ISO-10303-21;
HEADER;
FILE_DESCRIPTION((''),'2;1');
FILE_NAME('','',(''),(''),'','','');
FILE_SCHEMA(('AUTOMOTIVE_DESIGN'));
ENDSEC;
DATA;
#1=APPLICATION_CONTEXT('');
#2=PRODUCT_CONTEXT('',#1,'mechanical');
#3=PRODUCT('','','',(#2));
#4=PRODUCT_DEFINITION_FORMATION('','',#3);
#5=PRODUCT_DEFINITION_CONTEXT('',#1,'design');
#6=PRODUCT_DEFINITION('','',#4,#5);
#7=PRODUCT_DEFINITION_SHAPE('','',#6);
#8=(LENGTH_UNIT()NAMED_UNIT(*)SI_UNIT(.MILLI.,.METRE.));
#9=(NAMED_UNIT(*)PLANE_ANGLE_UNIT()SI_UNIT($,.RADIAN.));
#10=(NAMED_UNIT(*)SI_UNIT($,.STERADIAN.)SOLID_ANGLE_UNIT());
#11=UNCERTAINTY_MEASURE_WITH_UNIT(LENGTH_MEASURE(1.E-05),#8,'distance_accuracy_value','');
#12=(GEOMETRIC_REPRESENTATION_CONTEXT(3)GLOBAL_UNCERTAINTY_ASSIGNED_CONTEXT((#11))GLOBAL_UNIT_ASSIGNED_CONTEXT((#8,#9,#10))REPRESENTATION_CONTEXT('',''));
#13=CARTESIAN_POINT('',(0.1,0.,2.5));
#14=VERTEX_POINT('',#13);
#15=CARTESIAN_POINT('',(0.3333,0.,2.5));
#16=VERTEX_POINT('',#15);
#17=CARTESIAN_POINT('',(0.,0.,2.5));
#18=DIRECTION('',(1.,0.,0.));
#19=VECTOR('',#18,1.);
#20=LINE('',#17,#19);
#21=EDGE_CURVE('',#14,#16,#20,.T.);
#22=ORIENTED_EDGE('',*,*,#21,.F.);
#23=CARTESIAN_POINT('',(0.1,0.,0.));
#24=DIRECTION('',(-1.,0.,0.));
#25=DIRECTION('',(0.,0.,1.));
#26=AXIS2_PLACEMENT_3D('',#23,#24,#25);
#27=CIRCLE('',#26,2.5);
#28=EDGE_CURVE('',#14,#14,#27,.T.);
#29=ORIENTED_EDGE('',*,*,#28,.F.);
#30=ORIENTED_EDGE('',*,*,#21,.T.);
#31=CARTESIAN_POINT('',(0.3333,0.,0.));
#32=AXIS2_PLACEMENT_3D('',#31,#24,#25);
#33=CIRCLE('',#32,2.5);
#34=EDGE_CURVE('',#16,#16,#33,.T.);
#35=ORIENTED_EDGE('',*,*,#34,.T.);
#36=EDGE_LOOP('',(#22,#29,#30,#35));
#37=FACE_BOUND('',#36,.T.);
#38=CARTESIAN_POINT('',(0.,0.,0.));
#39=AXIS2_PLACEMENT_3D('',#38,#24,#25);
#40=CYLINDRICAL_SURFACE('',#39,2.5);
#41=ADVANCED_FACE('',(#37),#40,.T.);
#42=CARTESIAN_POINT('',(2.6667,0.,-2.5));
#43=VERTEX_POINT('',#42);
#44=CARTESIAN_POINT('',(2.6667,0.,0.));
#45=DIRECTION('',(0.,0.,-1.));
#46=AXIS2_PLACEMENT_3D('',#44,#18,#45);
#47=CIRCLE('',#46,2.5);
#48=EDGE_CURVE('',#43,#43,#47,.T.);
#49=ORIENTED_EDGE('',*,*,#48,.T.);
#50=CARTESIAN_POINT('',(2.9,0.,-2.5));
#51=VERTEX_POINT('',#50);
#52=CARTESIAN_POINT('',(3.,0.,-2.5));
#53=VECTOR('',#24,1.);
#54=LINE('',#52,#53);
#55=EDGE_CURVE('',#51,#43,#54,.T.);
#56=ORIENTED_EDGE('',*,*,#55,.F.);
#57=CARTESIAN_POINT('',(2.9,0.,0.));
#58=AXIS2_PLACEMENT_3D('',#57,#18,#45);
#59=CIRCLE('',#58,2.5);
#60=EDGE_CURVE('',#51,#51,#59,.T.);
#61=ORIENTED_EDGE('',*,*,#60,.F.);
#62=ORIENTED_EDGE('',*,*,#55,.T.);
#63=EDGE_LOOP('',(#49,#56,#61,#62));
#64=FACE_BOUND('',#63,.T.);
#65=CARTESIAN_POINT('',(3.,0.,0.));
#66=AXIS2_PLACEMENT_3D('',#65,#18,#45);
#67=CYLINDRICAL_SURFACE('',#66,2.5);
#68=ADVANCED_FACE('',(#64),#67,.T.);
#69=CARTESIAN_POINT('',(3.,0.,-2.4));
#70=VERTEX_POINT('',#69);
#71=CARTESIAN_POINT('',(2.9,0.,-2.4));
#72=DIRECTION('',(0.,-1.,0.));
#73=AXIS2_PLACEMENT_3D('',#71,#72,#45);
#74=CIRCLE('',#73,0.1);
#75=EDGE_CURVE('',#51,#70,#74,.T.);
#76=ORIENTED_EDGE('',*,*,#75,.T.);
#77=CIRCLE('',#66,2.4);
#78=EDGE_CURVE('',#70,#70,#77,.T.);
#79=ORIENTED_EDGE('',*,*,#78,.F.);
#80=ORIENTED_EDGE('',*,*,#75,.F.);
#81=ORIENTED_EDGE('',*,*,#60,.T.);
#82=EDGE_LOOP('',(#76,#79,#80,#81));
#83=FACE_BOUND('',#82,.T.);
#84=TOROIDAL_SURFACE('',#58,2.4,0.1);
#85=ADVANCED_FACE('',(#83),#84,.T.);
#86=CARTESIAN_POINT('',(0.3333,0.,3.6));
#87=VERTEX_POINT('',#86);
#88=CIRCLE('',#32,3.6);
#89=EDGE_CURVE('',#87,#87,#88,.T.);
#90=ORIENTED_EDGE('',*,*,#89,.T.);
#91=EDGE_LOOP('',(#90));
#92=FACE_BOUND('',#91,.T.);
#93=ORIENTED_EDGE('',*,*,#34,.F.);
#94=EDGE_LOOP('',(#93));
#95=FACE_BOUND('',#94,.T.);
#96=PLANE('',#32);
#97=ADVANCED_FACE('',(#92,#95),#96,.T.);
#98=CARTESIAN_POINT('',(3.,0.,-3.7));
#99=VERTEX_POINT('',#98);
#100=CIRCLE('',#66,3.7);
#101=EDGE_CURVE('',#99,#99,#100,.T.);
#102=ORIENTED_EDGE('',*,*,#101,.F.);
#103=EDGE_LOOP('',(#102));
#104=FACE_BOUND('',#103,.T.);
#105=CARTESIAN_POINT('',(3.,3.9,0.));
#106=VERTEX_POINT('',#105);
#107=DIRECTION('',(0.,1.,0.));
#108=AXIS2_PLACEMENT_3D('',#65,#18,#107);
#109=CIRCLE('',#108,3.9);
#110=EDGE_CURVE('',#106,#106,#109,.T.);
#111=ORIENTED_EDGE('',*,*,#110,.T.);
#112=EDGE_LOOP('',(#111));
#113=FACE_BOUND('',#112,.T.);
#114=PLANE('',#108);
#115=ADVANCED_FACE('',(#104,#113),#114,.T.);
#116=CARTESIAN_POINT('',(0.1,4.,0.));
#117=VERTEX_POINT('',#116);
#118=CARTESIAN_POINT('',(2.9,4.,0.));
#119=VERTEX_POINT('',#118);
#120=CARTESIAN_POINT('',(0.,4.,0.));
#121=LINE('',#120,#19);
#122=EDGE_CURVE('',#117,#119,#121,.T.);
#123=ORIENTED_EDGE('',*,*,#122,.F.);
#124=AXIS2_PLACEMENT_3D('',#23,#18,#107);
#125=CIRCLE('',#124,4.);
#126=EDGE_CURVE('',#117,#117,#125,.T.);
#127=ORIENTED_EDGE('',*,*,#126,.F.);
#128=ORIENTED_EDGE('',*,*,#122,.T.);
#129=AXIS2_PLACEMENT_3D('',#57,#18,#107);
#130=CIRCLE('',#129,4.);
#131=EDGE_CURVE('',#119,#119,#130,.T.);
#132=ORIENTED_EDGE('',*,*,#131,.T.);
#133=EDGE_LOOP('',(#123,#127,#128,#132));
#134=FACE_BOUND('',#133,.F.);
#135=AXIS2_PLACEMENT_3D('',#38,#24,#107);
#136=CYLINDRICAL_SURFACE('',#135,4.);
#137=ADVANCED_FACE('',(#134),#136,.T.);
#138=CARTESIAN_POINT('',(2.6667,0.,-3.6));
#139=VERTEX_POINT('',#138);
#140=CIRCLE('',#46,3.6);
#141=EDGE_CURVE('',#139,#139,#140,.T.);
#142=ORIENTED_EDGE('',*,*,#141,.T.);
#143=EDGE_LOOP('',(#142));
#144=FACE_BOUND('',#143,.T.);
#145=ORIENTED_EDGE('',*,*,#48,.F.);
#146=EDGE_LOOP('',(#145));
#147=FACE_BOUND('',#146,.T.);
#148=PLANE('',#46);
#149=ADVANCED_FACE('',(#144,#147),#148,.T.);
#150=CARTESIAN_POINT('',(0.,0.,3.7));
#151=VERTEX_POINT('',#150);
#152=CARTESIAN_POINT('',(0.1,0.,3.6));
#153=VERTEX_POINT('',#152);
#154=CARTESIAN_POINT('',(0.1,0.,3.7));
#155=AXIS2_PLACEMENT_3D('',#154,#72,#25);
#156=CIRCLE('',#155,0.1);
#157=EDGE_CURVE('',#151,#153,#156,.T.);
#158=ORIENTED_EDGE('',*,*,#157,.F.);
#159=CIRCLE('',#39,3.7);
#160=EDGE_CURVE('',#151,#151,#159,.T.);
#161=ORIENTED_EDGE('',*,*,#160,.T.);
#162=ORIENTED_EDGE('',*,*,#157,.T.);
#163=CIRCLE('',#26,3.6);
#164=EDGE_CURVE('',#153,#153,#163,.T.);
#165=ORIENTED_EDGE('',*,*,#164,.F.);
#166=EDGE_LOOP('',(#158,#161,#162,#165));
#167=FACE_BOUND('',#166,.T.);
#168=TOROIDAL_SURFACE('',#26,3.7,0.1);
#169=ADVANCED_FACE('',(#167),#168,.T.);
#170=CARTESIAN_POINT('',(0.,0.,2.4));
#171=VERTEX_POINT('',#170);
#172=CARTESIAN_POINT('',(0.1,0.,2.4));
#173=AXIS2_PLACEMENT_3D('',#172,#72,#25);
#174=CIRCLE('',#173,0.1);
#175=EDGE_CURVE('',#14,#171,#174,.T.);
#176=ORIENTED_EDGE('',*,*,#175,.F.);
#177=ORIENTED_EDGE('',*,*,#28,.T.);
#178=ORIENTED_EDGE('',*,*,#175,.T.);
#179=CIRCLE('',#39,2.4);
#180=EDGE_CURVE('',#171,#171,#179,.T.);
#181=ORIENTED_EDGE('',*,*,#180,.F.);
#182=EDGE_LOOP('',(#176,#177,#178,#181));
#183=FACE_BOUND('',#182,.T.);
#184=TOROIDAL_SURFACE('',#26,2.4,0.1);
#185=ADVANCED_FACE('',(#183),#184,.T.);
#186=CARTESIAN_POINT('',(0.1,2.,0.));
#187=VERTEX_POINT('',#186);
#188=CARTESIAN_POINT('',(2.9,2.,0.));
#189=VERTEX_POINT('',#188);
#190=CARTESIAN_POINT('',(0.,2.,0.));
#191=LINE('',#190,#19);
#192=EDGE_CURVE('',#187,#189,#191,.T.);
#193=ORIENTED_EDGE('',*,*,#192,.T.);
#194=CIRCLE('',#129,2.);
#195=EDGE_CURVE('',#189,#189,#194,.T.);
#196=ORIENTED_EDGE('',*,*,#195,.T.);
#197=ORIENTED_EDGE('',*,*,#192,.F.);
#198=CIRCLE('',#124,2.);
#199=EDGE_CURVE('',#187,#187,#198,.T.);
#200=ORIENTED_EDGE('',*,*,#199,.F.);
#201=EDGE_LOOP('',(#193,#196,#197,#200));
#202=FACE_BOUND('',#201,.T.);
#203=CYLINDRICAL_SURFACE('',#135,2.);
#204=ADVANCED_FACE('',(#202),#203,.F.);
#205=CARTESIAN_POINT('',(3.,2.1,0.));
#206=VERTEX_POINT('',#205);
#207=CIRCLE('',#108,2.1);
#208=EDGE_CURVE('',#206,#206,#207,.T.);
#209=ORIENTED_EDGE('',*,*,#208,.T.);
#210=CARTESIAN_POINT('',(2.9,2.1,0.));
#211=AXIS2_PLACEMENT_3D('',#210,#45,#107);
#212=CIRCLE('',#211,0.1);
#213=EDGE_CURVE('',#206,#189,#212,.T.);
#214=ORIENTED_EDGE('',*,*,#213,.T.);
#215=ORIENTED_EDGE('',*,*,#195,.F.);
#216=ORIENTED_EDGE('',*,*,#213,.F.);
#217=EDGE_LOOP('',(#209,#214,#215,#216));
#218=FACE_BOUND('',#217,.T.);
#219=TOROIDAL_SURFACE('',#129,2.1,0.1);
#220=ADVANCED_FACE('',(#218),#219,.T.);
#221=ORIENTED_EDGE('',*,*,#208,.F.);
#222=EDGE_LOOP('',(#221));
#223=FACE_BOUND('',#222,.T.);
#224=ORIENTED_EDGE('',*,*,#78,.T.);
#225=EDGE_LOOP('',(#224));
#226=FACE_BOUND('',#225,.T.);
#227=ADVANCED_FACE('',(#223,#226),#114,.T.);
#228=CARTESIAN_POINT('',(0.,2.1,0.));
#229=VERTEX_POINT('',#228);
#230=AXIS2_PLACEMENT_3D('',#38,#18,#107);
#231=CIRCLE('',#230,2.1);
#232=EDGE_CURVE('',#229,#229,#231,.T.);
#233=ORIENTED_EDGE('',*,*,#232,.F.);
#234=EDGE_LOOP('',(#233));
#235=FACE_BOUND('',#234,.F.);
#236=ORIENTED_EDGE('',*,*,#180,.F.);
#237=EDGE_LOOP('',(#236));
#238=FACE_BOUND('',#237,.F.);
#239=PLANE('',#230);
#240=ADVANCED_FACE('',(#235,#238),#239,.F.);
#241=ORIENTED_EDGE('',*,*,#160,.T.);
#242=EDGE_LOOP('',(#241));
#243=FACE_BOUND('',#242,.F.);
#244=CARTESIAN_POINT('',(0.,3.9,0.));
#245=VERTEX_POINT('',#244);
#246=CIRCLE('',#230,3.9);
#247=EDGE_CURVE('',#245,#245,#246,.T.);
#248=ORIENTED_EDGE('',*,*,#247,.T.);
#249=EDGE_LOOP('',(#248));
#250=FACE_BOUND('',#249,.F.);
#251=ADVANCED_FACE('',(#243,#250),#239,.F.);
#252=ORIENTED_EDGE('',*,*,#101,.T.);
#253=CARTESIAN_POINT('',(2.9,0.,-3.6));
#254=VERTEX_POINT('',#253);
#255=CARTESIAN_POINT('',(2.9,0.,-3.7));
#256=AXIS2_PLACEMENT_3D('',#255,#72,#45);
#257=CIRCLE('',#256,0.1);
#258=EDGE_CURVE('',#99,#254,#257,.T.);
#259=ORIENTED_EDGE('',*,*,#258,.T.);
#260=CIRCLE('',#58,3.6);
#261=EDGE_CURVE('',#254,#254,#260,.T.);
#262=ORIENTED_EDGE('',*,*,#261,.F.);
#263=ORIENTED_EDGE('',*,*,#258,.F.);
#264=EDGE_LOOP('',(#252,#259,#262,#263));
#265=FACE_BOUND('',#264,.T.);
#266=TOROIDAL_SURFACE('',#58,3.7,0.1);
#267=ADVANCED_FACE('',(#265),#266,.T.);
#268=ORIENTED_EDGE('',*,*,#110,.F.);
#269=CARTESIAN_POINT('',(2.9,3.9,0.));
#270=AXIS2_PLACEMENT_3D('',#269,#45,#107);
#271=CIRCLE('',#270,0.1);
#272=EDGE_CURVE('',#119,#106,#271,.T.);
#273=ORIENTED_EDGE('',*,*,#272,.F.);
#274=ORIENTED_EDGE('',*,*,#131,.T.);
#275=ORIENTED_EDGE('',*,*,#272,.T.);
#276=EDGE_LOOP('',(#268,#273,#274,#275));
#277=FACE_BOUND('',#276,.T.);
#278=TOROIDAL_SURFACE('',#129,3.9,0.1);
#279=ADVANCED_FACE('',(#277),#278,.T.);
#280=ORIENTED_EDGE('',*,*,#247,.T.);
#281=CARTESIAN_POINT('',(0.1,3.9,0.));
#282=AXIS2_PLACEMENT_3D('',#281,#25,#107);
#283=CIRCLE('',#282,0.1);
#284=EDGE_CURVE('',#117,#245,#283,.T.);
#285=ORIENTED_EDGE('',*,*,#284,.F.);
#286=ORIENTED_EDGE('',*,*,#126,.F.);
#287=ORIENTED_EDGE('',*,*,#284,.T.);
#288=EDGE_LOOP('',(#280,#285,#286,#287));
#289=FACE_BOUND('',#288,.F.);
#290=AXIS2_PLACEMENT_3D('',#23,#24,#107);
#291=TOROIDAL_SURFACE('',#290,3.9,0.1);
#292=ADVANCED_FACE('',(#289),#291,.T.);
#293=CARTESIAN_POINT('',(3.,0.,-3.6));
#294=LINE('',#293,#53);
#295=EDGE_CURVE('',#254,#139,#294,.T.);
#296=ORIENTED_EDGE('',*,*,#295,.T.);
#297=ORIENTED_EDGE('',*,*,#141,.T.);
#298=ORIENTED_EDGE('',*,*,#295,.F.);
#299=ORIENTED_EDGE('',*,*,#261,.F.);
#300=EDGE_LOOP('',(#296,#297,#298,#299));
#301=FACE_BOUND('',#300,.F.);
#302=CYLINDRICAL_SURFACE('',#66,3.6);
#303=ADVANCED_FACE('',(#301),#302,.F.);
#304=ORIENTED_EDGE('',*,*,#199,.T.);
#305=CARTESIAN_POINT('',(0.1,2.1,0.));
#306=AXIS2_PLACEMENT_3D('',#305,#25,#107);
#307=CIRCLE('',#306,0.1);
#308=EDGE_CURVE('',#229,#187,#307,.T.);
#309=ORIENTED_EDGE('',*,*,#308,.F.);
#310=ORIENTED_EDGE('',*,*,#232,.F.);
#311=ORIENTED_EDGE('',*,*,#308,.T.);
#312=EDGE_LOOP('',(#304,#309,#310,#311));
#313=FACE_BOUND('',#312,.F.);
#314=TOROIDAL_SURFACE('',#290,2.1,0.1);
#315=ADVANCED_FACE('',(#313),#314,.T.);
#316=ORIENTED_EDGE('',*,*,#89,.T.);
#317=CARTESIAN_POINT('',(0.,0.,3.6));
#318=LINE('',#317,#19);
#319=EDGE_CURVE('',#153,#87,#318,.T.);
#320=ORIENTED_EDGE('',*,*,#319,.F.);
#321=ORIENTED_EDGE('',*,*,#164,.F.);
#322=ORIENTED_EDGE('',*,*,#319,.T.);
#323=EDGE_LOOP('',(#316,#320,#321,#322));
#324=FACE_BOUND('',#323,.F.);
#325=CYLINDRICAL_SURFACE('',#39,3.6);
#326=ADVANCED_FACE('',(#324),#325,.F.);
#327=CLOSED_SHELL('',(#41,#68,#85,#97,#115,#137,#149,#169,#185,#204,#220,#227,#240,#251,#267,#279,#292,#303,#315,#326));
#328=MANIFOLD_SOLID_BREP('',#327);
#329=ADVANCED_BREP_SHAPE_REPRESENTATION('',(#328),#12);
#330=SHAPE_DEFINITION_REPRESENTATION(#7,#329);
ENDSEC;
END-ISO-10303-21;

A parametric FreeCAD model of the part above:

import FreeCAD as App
import Part
import Sketcher
Q = App.Units.Quantity


def edges_at(feature, points):
    """Names of the edges that pass closest to the given points."""
    edges = feature.Shape.Edges
    near = lambda p: min(range(len(edges)), key=lambda i: edges[i].distToShape(Part.Vertex(*p))[0])
    return sorted({f"Edge{near(p) + 1}" for p in points})

doc = App.newDocument("Part")
body = doc.addObject("PartDesign::Body", "Body")

sketch1 = body.newObject("Sketcher::SketchObject", "Sketch")
sketch1.AttachmentSupport = (doc.getObject("YZ_Plane"), [""])
sketch1.MapMode = "FlatFace"
sketch1.addGeometry([
    Part.Circle(App.Vector(0, 0, 0), App.Vector(0, 0, 1), 4),
    Part.Circle(App.Vector(0, 0, 0), App.Vector(0, 0, 1), 2),
], False)
sketch1.addConstraint([
    Sketcher.Constraint("Coincident", 0, 3, -1, 1),
    Sketcher.Constraint("Coincident", 1, 3, -1, 1),
    Sketcher.Constraint("Diameter", 0, Q("8 mm")),
    Sketcher.Constraint("Diameter", 1, Q("4 mm")),
])
pad1 = body.newObject("PartDesign::Pad", "Pad")
pad1.Profile = sketch1
pad1.Length = 3

sketch2 = body.newObject("Sketcher::SketchObject", "Sketch001")
sketch2.AttachmentSupport = (doc.getObject("YZ_Plane"), [""])
sketch2.MapMode = "FlatFace"
sketch2.AttachmentOffset = App.Placement(App.Vector(0, 0, 3), App.Rotation())
sketch2.addGeometry([
    Part.Circle(App.Vector(0, 0, 0), App.Vector(0, 0, 1), 3.6),
    Part.Circle(App.Vector(0, 0, 0), App.Vector(0, 0, 1), 2.5),
], False)
sketch2.addConstraint([
    Sketcher.Constraint("Coincident", 0, 3, -1, 1),
    Sketcher.Constraint("Coincident", 1, 3, -1, 1),
    Sketcher.Constraint("Diameter", 1, Q("5 mm")),
    Sketcher.Constraint("Diameter", 0, Q("7.2 mm")),
])
pocket1 = body.newObject("PartDesign::Pocket", "Pocket")
pocket1.Profile = sketch2
pocket1.Length = 0.3333

sketch3 = body.newObject("Sketcher::SketchObject", "Sketch002")
sketch3.AttachmentSupport = (doc.getObject("YZ_Plane"), [""])
sketch3.MapMode = "FlatFace"
sketch3.addGeometry([
    Part.Circle(App.Vector(0, 0, 0), App.Vector(0, 0, 1), 3.6),
    Part.Circle(App.Vector(0, 0, 0), App.Vector(0, 0, 1), 2.5),
], False)
sketch3.addConstraint([
    Sketcher.Constraint("Coincident", 0, 3, -1, 1),
    Sketcher.Constraint("Coincident", 1, 3, -1, 1),
    Sketcher.Constraint("Diameter", 1, Q("5 mm")),
    Sketcher.Constraint("Diameter", 0, Q("7.2 mm")),
])
pocket2 = body.newObject("PartDesign::Pocket", "Pocket001")
pocket2.Profile = sketch3
pocket2.Length = 0.3333
pocket2.Reversed = True
doc.recompute()

fillet = body.newObject("PartDesign::Fillet", "Fillet")
fillet.Base = (pocket2, edges_at(pocket2, [
    (3, -4, 0),
    (3, 0, 3.6),
    (3, 0, 2.5),
    (3, -2, 0),
    (0, -4, 0),
    (0, 0, -3.6),
    (0, 0, -2.5),
    (0, -2, 0),
]))
fillet.Radius = 0.1

doc.recompute()
